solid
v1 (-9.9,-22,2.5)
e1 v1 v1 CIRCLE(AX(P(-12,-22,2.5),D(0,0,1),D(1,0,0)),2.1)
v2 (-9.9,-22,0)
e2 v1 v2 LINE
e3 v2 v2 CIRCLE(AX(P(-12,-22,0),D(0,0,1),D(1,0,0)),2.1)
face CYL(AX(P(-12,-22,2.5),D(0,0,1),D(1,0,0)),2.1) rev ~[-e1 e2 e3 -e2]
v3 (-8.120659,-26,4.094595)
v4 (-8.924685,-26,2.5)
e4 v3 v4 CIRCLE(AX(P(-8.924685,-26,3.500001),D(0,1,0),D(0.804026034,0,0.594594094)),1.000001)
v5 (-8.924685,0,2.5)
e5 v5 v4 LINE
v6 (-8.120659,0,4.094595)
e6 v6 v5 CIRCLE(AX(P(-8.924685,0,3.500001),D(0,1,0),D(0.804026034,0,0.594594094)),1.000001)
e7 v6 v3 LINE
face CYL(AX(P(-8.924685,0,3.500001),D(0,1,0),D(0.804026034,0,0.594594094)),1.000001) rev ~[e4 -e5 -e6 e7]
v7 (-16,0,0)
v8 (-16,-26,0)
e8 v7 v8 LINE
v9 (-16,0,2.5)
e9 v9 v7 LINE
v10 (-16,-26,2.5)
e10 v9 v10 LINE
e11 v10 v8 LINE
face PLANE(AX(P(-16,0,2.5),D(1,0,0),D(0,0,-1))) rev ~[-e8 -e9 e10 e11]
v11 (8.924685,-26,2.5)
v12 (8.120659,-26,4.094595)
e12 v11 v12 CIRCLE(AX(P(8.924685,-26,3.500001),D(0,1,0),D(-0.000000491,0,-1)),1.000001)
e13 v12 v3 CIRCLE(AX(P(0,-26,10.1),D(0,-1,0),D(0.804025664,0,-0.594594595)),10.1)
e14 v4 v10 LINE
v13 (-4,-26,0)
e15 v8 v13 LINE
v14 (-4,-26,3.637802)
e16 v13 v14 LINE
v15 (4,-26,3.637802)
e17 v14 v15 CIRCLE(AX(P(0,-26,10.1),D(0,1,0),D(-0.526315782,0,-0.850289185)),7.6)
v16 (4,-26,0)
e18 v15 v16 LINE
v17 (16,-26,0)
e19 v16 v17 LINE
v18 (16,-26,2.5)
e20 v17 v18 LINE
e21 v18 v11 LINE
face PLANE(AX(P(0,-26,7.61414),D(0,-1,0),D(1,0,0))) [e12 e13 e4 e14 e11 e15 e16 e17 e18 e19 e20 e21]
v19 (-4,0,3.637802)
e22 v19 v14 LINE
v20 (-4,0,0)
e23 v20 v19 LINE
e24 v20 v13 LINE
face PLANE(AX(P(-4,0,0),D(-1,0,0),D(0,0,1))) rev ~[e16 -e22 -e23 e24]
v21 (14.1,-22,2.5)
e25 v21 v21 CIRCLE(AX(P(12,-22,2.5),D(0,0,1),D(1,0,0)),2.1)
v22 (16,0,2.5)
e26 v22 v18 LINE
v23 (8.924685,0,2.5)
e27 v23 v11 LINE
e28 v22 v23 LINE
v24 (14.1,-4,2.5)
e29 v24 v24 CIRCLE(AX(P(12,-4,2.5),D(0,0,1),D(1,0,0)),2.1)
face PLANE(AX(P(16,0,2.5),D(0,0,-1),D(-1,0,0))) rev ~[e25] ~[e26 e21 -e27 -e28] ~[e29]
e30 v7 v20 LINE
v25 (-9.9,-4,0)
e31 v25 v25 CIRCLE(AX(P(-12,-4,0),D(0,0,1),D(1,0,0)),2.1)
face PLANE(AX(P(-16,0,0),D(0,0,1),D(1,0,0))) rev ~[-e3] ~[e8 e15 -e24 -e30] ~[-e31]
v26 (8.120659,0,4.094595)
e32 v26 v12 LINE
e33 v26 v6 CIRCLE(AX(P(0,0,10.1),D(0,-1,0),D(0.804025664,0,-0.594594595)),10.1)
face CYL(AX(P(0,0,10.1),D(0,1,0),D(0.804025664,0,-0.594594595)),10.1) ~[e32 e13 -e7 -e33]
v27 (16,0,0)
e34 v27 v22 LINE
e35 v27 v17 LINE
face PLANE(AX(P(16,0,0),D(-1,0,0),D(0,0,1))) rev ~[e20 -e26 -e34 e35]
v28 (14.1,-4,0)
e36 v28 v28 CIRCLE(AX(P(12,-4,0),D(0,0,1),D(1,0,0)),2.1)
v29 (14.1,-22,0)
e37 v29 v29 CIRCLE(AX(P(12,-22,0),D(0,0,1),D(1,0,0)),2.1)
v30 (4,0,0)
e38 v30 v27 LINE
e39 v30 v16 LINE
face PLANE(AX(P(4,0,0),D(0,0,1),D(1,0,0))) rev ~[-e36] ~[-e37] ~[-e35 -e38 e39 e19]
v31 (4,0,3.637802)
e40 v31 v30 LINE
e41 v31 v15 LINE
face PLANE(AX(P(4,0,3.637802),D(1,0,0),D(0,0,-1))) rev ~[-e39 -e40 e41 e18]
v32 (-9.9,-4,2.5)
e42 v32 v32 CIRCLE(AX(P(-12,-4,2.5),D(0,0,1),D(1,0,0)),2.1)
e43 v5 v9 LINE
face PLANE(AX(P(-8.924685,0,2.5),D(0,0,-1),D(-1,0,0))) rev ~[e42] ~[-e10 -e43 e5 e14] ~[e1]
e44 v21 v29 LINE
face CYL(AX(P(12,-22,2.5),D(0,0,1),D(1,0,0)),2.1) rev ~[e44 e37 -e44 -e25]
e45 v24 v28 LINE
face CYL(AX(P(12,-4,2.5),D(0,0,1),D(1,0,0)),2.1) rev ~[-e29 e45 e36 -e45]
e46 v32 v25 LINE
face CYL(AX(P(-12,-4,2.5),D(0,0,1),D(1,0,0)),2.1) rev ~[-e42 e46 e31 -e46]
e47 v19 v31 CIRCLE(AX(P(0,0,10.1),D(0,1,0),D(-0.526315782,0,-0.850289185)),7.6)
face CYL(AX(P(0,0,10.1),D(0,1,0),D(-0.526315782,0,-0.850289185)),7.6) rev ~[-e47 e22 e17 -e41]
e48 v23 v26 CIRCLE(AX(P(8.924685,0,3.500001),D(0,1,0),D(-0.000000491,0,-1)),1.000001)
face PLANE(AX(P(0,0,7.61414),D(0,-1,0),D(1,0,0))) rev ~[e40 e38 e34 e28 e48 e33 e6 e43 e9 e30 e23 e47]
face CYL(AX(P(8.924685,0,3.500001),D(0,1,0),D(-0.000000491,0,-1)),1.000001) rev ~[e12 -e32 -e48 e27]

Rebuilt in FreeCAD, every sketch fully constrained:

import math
import FreeCAD as App
import Part
import Sketcher
from FreeCAD import Vector

doc = App.newDocument("Part")
body = doc.addObject("PartDesign::Body", "Body")

# Sketch on XZ plane
sketch1 = body.newObject("Sketcher::SketchObject", "Sketch")
sketch1.AttachmentSupport = (doc.getObject("XZ_Plane"), [""])
sketch1.MapMode = "FlatFace"
sketch1.addGeometry([
    Part.LineSegment(Vector(-16, 2.5, 0), Vector(-16, 0, 0)),  # 0
    Part.LineSegment(Vector(-16, 0, 0), Vector(-4, 0, 0)),  # 1
    Part.LineSegment(Vector(-4, 0, 0), Vector(-4, 3.637802, 0)),  # 2
    Part.ArcOfCircle(Part.Circle(Vector(0, 10.1, 0), Vector(0, 0, 1), 7.6), math.radians(-58.243137), math.radians(238.243137)),  # 3
    Part.LineSegment(Vector(4, 3.637802, 0), Vector(4, 0, 0)),  # 4
    Part.LineSegment(Vector(4, 0, 0), Vector(16, 0, 0)),  # 5
    Part.LineSegment(Vector(16, 0, 0), Vector(16, 2.5, 0)),  # 6
    Part.LineSegment(Vector(16, 2.5, 0), Vector(8.924685, 2.5, 0)),  # 7
    Part.ArcOfCircle(Part.Circle(Vector(8.924685, 3.500001, 0), Vector(0, 0, 1), 1.000001), math.radians(143.516299), math.radians(269.999972)),  # 8
    Part.ArcOfCircle(Part.Circle(Vector(0, 10.1, 0), Vector(0, 0, 1), 10.1), math.radians(-36.483737), math.radians(216.483737)),  # 9
    Part.ArcOfCircle(Part.Circle(Vector(-8.924685, 3.500001, 0), Vector(0, 0, 1), 1.000001), math.radians(-89.999972), math.radians(36.483701)),  # 10
    Part.LineSegment(Vector(-8.924685, 2.5, 0), Vector(-16, 2.5, 0)),  # 11
], False)
sketch1.addConstraint([
    Sketcher.Constraint("Coincident", 0, 2, 1, 1),
    Sketcher.Constraint("Coincident", 1, 2, 2, 1),
    Sketcher.Constraint("Coincident", 2, 2, 3, 2),
    Sketcher.Constraint("Coincident", 3, 1, 4, 1),
    Sketcher.Constraint("Coincident", 4, 2, 5, 1),
    Sketcher.Constraint("Coincident", 5, 2, 6, 1),
    Sketcher.Constraint("Coincident", 6, 2, 7, 1),
    Sketcher.Constraint("Tangent", 7, 2, 8, 2),
    Sketcher.Constraint("Tangent", 8, 1, 9, 1),
    Sketcher.Constraint("Tangent", 9, 2, 10, 2),
    Sketcher.Constraint("Tangent", 10, 1, 11, 1),
    Sketcher.Constraint("Coincident", 11, 2, 0, 1),
    Sketcher.Constraint("Vertical", 0),
    Sketcher.Constraint("Horizontal", 1),
    Sketcher.Constraint("Vertical", 2),
    Sketcher.Constraint("Vertical", 4),
    Sketcher.Constraint("Horizontal", 5),
    Sketcher.Constraint("Vertical", 6),
    Sketcher.Constraint("Horizontal", 7),
    Sketcher.Constraint("Horizontal", 11),
    Sketcher.Constraint("Coincident", 9, 3, 3, 3),
    Sketcher.Constraint("Equal", 8, 10),
    Sketcher.Constraint("Symmetric", 1, 2, 4, 2, -1, 1),
    Sketcher.Constraint("Symmetric", 8, 3, 10, 3, -2),
    Sketcher.Constraint("Symmetric", 0, 2, 5, 2, -2),
    Sketcher.Constraint("Radius", 8, 1.000001),
    Sketcher.Constraint("Radius", 3, 7.6),
    Sketcher.Constraint("Radius", 9, 10.1),
    Sketcher.Constraint("DistanceX", 1, 1, 1, 2, 12.0),
    Sketcher.Constraint("DistanceY", 0, 2, 0, 1, 2.5),
    Sketcher.Constraint("DistanceX", 0, 2, -1, 1, 16.0),
    Sketcher.Constraint("DistanceY", -1, 1, 3, 3, 10.1),
])
pad1 = body.newObject("PartDesign::Pad", "Pad")
pad1.Profile = sketch1
pad1.Length = 26

# Sketch on XY plane
sketch2 = body.newObject("Sketcher::SketchObject", "Sketch001")
sketch2.AttachmentSupport = (doc.getObject("XY_Plane"), [""])
sketch2.MapMode = "FlatFace"
sketch2.AttachmentOffset = App.Placement(Vector(0, 0, 2.5), App.Rotation())
sketch2.addGeometry([
    Part.Circle(Vector(-12, -22, 0), Vector(0, 0, 1), 2.1),
    Part.Circle(Vector(-12, -4, 0), Vector(0, 0, 1), 2.1),
    Part.Circle(Vector(12, -22, 0), Vector(0, 0, 1), 2.1),
    Part.Circle(Vector(12, -4, 0), Vector(0, 0, 1), 2.1),
], False)
sketch2.addConstraint([
    Sketcher.Constraint("Equal", 0, 1),
    Sketcher.Constraint("Equal", 1, 2),
    Sketcher.Constraint("Equal", 2, 3),
    Sketcher.Constraint("Symmetric", 0, 3, 2, 3, -2),
    Sketcher.Constraint("Symmetric", 1, 3, 3, 3, -2),
    Sketcher.Constraint("Vertical", 0, 3, 1, 3),
    Sketcher.Constraint("Diameter", 0, 4.2),
    Sketcher.Constraint("DistanceX", 0, 3, -1, 1, 12.0),
    Sketcher.Constraint("DistanceY", 0, 3, -1, 1, 22.0),
    Sketcher.Constraint("DistanceY", 1, 3, -1, 1, 4.0),
])
pocket1 = body.newObject("PartDesign::Pocket", "Pocket")
pocket1.Profile = sketch2
pocket1.Type = "ThroughAll"

doc.recompute()
